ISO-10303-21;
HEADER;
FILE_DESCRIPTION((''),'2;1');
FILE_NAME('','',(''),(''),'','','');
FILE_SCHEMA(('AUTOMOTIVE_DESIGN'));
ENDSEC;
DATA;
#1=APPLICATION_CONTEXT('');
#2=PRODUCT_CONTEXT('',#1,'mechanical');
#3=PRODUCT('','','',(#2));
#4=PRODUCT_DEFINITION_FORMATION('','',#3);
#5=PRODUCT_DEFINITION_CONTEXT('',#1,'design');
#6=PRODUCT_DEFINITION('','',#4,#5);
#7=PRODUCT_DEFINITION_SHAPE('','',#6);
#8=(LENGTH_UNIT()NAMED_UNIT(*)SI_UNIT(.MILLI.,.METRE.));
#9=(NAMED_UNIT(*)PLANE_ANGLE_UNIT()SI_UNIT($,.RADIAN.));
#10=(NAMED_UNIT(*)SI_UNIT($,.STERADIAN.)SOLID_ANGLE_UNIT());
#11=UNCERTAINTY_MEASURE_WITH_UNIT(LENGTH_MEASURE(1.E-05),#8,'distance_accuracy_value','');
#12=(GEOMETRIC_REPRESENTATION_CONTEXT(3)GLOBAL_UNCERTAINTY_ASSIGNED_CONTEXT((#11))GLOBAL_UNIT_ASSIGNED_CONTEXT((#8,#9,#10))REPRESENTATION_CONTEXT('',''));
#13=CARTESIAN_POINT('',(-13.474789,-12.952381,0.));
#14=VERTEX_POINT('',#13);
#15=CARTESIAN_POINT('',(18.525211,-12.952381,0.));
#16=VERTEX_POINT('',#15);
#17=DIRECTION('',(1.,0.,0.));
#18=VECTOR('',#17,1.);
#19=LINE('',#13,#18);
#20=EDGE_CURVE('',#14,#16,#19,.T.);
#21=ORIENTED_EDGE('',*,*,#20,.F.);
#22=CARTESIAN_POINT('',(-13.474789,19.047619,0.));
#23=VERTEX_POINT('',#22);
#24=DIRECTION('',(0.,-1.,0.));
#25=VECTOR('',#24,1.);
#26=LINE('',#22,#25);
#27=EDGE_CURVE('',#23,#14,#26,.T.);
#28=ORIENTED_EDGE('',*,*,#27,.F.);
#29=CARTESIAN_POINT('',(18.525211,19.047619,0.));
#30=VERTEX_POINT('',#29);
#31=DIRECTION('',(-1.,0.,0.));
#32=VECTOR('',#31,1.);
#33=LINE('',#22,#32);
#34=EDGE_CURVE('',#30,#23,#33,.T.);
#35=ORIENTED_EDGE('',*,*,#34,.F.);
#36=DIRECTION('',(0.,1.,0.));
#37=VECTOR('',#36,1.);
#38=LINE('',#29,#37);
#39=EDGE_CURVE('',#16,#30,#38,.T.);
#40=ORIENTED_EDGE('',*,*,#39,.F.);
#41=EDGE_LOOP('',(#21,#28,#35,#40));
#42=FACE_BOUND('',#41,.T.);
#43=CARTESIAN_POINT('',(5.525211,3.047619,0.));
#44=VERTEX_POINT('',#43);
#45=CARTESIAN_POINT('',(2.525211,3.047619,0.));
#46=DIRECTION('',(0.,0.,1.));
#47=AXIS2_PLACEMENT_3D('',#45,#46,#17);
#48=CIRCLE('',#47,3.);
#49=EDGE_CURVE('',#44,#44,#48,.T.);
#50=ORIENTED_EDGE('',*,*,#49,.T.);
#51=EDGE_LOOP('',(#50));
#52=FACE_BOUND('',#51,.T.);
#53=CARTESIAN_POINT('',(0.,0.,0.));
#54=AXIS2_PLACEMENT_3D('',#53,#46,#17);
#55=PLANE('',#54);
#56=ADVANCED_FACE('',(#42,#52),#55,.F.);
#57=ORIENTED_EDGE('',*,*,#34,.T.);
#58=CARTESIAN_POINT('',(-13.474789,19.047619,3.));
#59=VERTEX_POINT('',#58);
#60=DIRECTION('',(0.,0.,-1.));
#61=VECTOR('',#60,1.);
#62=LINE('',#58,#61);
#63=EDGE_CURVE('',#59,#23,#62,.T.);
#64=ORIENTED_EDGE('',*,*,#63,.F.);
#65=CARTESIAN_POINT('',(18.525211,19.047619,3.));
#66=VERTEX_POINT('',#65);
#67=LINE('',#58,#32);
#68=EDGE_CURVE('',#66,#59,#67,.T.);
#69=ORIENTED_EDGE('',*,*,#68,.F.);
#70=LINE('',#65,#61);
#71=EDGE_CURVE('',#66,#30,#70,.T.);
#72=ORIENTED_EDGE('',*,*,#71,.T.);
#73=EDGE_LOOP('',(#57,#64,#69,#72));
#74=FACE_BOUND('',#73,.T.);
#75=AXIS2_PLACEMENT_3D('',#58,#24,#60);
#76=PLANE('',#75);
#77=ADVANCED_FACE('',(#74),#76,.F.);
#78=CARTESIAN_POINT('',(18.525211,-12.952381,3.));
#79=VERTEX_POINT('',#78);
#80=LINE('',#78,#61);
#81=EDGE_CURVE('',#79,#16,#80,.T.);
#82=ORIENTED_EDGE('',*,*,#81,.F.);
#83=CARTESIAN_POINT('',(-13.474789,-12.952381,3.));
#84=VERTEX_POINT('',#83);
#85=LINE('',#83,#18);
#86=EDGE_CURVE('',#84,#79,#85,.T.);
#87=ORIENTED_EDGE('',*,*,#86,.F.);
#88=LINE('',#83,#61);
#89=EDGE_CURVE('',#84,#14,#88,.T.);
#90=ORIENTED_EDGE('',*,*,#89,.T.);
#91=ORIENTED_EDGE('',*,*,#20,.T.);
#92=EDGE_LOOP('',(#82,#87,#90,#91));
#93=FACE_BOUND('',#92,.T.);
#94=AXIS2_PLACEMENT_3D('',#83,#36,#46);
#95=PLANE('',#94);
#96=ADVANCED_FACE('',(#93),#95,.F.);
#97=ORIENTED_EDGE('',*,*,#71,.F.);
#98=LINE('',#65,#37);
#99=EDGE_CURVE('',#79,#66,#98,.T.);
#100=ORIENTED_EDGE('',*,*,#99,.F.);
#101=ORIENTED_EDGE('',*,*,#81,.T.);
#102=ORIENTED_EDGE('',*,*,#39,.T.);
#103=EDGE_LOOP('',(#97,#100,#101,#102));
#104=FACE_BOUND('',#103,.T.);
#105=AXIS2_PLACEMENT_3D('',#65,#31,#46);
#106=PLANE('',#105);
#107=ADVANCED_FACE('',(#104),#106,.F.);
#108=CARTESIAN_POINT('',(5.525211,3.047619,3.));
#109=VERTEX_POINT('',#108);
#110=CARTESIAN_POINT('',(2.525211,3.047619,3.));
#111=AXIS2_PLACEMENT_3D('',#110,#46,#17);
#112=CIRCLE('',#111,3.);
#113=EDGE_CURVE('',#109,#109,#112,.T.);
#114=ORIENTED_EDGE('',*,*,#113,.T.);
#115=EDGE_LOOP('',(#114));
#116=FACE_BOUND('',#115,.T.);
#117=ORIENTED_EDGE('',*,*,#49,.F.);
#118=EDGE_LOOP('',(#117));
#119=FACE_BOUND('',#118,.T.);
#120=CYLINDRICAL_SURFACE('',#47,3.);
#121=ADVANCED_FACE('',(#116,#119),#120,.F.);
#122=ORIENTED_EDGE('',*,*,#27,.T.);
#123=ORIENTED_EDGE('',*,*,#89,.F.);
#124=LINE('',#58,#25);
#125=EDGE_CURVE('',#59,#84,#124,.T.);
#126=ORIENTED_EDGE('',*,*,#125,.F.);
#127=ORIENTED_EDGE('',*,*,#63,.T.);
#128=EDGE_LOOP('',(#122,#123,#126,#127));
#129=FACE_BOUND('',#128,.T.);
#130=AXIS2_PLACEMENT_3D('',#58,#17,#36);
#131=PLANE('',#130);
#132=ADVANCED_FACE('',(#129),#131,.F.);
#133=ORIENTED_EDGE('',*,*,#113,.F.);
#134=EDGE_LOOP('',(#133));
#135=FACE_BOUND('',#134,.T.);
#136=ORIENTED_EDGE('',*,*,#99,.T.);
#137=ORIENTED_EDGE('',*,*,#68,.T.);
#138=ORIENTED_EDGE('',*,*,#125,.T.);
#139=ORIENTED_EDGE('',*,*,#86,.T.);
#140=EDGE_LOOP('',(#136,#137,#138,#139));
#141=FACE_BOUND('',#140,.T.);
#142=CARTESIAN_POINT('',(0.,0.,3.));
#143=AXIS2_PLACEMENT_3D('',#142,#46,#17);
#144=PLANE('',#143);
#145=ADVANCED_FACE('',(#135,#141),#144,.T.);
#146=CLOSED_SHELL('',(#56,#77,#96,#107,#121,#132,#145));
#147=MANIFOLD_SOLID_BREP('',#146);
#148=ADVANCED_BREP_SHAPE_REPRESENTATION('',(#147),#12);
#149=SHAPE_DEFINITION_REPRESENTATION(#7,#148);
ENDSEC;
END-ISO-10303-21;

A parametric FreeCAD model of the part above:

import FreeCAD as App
import Part
import Sketcher
from FreeCAD import Vector
Q = App.Units.Quantity


def add_polygon(sketch, points):
    """Adds a closed chain of lines whose ends are joined by coincident constraints."""
    first, n = sketch.GeometryCount, len(points)
    for a, b in zip(points, points[1:] + points[:1]):
        sketch.addGeometry(Part.LineSegment(App.Vector(*a, 0), App.Vector(*b, 0)), False)
    for i in range(n):
        sketch.addConstraint(Sketcher.Constraint("Coincident", first + i, 2, first + (i + 1) % n, 1))

doc = App.newDocument("Part")
body = doc.addObject("PartDesign::Body", "Body")

sketch1 = body.newObject("Sketcher::SketchObject", "Sketch")
sketch1.AttachmentSupport = (doc.getObject("XY_Plane"), [""])
sketch1.MapMode = "FlatFace"
add_polygon(sketch1, [(-13, 19), (-13, -13), (19, -13), (19, 19)])
sketch1.addConstraint(Sketcher.Constraint("Vertical", 0))
sketch1.addConstraint(Sketcher.Constraint("Horizontal", 1))
sketch1.addConstraint(Sketcher.Constraint("Vertical", 2))
sketch1.addConstraint(Sketcher.Constraint("Horizontal", 3))
sketch1.addConstraint(Sketcher.Constraint("Equal", 3, 0))
sketch1.addConstraint(Sketcher.Constraint("DistanceX", 1, 1, 1, 2, Q("32 mm")))
sketch1.addConstraint(Sketcher.Constraint("DistanceX", 0, 2, -1, 1, Q("13.474789 mm")))
sketch1.addConstraint(Sketcher.Constraint("DistanceY", 0, 2, -1, 1, Q("12.952381 mm")))
pad1 = body.newObject("PartDesign::Pad", "Pad")
pad1.Profile = sketch1
pad1.Length = 3

sketch2 = body.newObject("Sketcher::SketchObject", "Sketch001")
sketch2.AttachmentSupport = (doc.getObject("XY_Plane"), [""])
sketch2.MapMode = "FlatFace"
sketch2.AttachmentOffset = App.Placement(Vector(0, 0, 3), App.Rotation())
sketch2.addGeometry(Part.Circle(Vector(2.5, 3, 0), Vector(0, 0, 1), 3), False)
sketch2.addConstraint(Sketcher.Constraint("Diameter", 0, Q("6 mm")))
sketch2.addConstraint(Sketcher.Constraint("DistanceX", -1, 1, 0, 3, Q("2.525211 mm")))
sketch2.addConstraint(Sketcher.Constraint("DistanceY", -1, 1, 0, 3, Q("3.047619 mm")))
pocket1 = body.newObject("PartDesign::Pocket", "Pocket")
pocket1.Profile = sketch2
pocket1.Type = "ThroughAll"

doc.recompute()
